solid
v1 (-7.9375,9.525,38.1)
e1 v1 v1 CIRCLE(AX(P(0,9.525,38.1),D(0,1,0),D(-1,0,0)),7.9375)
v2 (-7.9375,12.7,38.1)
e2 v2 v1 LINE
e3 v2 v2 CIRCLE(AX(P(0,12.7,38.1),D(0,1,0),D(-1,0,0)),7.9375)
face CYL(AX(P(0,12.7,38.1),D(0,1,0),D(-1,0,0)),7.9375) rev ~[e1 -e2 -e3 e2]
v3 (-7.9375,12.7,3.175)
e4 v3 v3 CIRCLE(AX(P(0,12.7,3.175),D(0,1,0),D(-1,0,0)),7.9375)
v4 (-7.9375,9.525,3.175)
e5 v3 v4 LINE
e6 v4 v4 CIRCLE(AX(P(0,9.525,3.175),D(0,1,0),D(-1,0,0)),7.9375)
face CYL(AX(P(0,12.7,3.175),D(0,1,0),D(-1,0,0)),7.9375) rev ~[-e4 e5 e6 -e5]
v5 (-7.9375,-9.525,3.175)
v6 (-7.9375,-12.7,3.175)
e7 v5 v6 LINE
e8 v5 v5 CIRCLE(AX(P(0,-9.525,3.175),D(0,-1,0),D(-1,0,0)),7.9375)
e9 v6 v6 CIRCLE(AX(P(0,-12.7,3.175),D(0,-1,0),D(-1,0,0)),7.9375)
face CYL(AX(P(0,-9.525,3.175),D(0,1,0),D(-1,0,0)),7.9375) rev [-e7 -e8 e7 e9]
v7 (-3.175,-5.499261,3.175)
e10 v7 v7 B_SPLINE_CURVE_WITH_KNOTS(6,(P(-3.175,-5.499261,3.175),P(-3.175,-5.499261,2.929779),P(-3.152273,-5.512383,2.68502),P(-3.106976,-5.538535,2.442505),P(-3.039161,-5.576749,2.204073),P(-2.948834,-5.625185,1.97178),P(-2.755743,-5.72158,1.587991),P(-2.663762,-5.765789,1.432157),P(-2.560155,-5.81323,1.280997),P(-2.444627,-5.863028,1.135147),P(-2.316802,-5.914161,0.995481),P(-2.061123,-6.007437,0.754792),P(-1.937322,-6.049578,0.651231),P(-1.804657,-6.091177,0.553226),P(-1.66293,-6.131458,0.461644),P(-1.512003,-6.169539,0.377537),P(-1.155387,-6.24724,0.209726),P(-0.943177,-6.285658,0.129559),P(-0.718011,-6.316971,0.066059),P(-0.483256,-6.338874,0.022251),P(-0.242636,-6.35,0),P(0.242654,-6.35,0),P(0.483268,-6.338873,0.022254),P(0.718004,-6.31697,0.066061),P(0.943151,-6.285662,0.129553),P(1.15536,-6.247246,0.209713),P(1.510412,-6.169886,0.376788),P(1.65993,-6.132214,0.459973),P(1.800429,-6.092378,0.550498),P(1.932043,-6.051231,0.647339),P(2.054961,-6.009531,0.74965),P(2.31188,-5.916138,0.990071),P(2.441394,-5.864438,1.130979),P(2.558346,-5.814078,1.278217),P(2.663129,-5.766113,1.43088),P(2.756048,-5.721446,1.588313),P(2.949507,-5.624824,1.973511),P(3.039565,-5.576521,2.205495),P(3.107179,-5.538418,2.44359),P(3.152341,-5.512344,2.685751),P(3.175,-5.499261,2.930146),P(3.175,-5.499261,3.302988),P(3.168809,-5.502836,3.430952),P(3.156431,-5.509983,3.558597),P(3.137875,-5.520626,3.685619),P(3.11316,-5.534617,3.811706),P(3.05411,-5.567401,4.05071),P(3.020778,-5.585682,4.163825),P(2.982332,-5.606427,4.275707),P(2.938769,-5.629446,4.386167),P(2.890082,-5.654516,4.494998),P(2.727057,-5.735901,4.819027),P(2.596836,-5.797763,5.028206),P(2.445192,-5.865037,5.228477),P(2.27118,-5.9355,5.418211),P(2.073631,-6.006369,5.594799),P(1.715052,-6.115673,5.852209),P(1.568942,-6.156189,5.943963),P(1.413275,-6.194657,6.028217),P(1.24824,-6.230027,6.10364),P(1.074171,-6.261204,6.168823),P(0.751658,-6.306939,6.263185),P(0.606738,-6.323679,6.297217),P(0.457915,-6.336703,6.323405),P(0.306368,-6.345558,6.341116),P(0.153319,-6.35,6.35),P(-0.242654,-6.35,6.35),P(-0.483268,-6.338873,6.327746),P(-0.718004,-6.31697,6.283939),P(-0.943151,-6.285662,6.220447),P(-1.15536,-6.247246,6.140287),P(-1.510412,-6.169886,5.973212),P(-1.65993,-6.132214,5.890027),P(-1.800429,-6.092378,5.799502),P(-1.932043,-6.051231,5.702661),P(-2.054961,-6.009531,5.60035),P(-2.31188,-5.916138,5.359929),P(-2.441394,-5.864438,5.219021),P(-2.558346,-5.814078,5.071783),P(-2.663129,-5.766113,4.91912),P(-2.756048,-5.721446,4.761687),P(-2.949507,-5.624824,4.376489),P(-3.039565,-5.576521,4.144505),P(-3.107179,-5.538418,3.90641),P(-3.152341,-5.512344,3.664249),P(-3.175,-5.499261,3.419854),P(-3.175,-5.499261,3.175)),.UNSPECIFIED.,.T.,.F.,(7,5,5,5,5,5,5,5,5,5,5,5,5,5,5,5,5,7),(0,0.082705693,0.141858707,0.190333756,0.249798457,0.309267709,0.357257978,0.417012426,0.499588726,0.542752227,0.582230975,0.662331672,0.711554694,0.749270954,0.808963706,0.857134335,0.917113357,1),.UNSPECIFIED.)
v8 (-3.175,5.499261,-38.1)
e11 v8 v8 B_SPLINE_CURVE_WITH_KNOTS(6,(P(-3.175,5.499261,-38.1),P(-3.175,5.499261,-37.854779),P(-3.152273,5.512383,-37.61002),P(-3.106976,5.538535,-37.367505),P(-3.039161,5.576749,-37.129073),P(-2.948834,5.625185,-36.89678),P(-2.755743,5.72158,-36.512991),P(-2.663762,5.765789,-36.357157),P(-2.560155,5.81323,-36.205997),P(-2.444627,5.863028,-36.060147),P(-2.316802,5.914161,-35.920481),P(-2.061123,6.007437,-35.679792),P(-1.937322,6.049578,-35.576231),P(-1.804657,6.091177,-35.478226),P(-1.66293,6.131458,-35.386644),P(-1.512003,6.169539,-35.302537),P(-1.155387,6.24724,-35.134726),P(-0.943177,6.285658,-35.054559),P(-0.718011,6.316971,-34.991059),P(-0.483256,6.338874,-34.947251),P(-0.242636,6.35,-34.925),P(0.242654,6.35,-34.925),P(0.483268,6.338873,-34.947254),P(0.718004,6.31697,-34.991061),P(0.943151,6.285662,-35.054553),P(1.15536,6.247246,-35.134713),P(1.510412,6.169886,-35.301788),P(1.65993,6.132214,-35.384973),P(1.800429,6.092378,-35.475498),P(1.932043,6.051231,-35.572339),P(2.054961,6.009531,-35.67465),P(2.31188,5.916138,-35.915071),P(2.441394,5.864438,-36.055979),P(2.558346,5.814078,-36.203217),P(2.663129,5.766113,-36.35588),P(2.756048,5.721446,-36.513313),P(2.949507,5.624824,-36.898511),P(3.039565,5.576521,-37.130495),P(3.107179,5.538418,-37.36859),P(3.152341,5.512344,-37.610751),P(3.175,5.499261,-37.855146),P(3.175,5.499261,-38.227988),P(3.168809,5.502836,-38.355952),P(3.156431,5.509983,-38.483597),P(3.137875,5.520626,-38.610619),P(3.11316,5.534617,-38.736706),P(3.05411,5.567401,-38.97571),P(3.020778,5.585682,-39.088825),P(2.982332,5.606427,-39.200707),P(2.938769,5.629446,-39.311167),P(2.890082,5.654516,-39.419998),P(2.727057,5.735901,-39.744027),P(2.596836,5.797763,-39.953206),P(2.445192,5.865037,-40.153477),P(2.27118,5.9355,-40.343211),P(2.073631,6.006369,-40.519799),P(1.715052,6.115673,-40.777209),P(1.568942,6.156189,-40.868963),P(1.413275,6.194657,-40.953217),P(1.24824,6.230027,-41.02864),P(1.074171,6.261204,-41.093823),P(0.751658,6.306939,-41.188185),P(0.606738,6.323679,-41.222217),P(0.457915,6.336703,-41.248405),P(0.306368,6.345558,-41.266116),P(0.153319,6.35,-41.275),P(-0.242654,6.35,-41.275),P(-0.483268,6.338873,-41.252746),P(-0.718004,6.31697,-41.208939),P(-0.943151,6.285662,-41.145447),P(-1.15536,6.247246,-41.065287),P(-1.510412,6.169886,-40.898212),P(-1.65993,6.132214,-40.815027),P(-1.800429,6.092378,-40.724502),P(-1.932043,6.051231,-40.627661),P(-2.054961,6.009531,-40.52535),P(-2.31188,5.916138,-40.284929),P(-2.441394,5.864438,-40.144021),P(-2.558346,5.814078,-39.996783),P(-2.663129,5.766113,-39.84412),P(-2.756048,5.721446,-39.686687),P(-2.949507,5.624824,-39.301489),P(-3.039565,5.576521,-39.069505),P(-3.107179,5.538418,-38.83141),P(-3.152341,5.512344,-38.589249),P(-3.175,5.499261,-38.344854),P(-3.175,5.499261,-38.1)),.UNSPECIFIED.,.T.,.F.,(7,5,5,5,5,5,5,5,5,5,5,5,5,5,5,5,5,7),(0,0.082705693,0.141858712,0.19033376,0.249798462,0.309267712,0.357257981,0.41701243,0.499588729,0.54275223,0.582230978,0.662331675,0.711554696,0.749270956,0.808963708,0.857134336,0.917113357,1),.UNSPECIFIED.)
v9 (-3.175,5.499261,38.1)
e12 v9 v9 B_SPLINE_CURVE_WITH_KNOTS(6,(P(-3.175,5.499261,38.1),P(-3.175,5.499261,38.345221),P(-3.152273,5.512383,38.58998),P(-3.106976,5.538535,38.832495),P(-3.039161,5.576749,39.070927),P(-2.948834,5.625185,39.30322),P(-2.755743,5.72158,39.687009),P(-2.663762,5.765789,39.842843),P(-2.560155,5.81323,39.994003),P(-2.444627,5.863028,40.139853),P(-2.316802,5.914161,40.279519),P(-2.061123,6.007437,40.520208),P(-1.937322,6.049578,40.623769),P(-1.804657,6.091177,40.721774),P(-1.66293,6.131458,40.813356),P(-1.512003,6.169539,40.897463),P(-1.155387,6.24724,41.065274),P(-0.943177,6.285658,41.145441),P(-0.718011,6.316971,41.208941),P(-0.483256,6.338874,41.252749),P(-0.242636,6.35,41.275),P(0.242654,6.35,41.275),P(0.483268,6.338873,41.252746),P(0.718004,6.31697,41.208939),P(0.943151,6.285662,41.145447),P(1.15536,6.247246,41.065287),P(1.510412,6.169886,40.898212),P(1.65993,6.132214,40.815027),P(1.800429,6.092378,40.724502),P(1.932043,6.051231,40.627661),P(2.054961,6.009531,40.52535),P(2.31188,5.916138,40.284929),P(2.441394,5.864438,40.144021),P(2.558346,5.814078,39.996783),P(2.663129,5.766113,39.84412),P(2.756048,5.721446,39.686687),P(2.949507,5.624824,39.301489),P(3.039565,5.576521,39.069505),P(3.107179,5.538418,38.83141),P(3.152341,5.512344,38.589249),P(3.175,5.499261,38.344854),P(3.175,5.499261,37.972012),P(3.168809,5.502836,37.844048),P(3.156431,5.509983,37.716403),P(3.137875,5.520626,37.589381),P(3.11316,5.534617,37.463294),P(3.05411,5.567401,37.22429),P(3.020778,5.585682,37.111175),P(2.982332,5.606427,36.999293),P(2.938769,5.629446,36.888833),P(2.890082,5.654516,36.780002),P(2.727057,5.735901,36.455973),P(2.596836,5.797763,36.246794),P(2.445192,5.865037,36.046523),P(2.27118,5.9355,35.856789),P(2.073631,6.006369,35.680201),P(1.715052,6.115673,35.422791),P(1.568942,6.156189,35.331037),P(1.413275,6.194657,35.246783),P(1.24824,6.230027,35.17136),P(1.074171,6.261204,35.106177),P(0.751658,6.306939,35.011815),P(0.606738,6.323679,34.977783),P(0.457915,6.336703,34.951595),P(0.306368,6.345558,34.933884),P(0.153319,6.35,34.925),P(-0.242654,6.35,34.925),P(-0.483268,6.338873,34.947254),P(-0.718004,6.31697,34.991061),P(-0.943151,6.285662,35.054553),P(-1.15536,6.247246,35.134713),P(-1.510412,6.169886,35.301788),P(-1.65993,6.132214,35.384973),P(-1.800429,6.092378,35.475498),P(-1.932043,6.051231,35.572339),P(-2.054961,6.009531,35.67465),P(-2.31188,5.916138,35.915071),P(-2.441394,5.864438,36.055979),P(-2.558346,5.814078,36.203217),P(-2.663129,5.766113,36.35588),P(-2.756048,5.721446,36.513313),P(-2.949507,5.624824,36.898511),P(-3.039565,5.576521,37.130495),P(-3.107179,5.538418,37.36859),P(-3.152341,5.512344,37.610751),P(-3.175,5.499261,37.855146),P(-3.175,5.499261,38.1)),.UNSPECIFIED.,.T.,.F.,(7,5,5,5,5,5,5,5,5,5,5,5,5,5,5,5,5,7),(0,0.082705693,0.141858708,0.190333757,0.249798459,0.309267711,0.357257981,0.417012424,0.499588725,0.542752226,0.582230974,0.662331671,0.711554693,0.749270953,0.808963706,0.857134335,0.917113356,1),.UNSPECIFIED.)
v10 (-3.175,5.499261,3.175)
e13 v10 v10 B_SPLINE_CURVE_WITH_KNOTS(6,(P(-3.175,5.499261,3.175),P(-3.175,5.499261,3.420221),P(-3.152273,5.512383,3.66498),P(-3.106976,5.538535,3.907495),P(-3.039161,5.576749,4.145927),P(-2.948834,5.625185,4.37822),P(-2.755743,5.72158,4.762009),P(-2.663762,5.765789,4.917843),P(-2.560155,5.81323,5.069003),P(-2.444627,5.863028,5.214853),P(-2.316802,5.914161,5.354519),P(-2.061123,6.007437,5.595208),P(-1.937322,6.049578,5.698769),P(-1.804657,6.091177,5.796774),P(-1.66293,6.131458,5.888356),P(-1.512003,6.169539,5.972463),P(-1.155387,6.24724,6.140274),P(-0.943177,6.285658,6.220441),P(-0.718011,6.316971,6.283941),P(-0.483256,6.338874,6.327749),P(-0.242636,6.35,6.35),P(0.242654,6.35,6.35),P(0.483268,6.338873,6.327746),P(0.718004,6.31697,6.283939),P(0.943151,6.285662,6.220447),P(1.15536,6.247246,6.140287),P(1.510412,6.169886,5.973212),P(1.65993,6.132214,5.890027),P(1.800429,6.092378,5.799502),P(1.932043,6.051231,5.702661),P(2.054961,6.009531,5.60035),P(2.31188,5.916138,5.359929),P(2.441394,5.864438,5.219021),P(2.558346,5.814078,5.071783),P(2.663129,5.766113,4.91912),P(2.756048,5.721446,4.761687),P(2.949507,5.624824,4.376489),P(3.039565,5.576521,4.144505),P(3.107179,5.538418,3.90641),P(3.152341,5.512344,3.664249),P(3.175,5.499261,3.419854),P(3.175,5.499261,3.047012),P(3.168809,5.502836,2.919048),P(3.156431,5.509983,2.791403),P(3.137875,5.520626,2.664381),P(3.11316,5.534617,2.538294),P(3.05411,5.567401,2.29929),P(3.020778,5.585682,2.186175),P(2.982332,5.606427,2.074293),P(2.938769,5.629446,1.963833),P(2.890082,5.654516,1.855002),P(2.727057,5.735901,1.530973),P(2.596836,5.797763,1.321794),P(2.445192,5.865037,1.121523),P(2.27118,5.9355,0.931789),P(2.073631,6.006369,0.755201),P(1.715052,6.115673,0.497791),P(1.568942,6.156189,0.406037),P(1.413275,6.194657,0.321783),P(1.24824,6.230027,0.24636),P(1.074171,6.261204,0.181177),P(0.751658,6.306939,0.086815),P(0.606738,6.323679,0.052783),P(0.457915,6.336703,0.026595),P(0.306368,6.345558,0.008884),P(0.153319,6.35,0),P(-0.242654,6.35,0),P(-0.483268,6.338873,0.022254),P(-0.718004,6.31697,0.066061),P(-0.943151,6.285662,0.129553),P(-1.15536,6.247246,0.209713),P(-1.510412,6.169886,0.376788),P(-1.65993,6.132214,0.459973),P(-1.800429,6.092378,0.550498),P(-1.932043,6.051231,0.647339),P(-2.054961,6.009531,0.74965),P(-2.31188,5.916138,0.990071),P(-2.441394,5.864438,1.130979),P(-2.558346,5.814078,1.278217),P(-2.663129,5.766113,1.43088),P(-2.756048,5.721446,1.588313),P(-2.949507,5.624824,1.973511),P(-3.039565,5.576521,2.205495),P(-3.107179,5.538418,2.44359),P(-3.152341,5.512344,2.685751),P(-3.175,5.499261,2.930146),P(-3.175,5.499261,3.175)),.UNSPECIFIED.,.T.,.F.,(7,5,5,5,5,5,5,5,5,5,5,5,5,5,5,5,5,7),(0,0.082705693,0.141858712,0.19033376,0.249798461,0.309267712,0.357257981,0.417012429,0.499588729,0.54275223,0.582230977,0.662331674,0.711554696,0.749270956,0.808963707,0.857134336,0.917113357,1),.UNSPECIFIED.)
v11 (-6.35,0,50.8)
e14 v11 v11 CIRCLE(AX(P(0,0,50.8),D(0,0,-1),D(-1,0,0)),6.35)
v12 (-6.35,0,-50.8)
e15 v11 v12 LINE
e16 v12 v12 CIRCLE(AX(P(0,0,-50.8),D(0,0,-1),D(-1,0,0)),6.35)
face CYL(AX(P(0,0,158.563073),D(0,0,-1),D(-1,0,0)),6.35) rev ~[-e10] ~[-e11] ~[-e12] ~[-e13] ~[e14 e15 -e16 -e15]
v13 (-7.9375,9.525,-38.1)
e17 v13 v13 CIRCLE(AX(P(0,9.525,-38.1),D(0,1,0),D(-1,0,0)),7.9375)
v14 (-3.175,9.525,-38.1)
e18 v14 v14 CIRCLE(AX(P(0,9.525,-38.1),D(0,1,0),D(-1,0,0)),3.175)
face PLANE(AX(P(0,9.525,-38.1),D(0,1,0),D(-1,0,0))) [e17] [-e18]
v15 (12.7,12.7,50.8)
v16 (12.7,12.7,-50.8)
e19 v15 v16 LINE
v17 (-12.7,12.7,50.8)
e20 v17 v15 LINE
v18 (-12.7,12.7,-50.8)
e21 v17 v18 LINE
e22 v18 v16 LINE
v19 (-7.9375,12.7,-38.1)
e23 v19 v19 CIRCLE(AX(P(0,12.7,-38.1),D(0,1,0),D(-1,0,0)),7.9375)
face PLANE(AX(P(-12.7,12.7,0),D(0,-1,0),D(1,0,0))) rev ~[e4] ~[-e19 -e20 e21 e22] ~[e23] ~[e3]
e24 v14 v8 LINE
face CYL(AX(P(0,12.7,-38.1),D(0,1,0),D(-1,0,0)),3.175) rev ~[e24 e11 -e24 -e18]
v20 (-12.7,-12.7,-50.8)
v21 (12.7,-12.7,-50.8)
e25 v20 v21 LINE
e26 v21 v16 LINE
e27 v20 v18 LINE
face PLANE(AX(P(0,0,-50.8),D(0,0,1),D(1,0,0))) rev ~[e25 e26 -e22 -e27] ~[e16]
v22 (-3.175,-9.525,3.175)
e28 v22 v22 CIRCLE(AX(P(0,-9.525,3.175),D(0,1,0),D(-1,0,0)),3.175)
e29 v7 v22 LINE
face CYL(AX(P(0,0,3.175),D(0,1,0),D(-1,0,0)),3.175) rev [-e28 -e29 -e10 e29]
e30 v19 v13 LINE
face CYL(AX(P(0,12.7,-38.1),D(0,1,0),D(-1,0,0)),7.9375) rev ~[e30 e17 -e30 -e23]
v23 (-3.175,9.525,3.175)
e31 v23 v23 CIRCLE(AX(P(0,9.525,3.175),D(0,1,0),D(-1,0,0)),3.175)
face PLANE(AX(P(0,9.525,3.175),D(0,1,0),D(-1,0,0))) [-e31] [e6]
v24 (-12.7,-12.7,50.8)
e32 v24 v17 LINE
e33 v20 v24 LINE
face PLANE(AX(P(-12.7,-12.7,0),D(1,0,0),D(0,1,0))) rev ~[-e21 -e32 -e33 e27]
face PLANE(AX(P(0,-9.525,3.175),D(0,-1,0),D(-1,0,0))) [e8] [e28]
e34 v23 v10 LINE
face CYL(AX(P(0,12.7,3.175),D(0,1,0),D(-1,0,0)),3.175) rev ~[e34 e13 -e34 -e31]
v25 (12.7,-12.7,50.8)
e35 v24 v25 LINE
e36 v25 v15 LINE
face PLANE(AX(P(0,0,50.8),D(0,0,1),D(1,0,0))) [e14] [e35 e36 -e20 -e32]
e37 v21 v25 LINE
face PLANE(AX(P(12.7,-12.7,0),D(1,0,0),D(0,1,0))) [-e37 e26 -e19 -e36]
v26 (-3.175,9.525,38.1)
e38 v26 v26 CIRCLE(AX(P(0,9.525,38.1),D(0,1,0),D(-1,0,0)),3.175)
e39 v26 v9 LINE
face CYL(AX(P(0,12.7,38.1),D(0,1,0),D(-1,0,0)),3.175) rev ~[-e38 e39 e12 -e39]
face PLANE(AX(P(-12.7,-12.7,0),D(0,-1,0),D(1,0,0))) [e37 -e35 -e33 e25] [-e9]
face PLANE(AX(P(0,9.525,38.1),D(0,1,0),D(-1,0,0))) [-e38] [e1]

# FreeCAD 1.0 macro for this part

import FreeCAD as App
import Part
import Sketcher

V = App.Vector
Q = App.Units.Quantity

doc = App.newDocument("Part")
params = doc.addObject("Spreadsheet::Sheet", "Params")
for row, (alias, value) in enumerate([
    ("sketch1_width", "1 in"),
    ("pad1_length", "4 in"),
    ("sketch2_diameter", "0.5 in"),
    ("hole_diameter", "0.5 in"),
    ("sketch3_diameter", "0.25 in"),
    ("pocket1_length", "0.5 in"),
    ("sketch4_diameter", "0.625 in"),
    ("pocket2_length", "0.125 in"),
    ("sketch5_diameter", "0.25 in"),
    ("pocket3_length", "0.5 in"),
    ("sketch6_diameter", "0.625 in"),
    ("pocket4_length", "0.125 in"),
], start=1):
    params.set(f"A{row}", alias)
    params.set(f"B{row}", "=" + value)
    params.setAlias(f"B{row}", alias)

body = doc.addObject("PartDesign::Body", "Body")

# Sketch on XY plane
sketch1 = body.newObject("Sketcher::SketchObject", "Sketch")
sketch1.AttachmentSupport = (doc.getObject("XY_Plane"), [""])
sketch1.MapMode = "FlatFace"
sketch1.addGeometry([
    Part.LineSegment(V(-13, 13, 0), V(-13, -13, 0)),
    Part.LineSegment(V(-13, -13, 0), V(13, -13, 0)),
    Part.LineSegment(V(13, -13, 0), V(13, 13, 0)),
    Part.LineSegment(V(13, 13, 0), V(-13, 13, 0)),
], False)
sketch1.addConstraint([
    Sketcher.Constraint("Coincident", 0, 2, 1, 1),
    Sketcher.Constraint("Coincident", 1, 2, 2, 1),
    Sketcher.Constraint("Coincident", 2, 2, 3, 1),
    Sketcher.Constraint("Coincident", 3, 2, 0, 1),
    Sketcher.Constraint("Vertical", 0),
    Sketcher.Constraint("Horizontal", 1),
    Sketcher.Constraint("Vertical", 2),
    Sketcher.Constraint("Horizontal", 3),
    Sketcher.Constraint("Symmetric", 0, 2, 2, 2, -1, 1),
    Sketcher.Constraint("Equal", 3, 0),
    Sketcher.Constraint("DistanceX", 1, 1, 1, 2, Q("1 in")),
])
sketch1.setExpression("Constraints[10]", "Params.sketch1_width")
pad1 = body.newObject("PartDesign::Pad", "Pad")
pad1.Profile = sketch1
pad1.setExpression("Length", "Params.pad1_length")
pad1.Midplane = True

# Sketch on XY plane
sketch2 = body.newObject("Sketcher::SketchObject", "Sketch001")
sketch2.AttachmentSupport = (doc.getObject("XY_Plane"), [""])
sketch2.MapMode = "FlatFace"
sketch2.AttachmentOffset = App.Placement(V(0, 0, 2 * 25.4), App.Rotation())
sketch2.addGeometry(Part.Circle(V(0, 0, 0), V(0, 0, 1), 6), False)
sketch2.addConstraint([
    Sketcher.Constraint("Coincident", 0, 3, -1, 1),
    Sketcher.Constraint("Diameter", 0, Q("0.5 in")),
])
sketch2.setExpression("Constraints[1]", "Params.sketch2_diameter")
doc.recompute()
hole = body.newObject("PartDesign::Hole", "Hole")
hole.Profile = sketch2
hole.ThreadType = "None"
hole.setExpression("Diameter", "Params.hole_diameter")
hole.DepthType = "ThroughAll"

# Sketch on XZ plane
sketch3 = body.newObject("Sketcher::SketchObject", "Sketch002")
sketch3.AttachmentSupport = (doc.getObject("XZ_Plane"), [""])
sketch3.MapMode = "FlatFace"
sketch3.AttachmentOffset = App.Placement(V(0, 0, -0.5 * 25.4), App.Rotation())
sketch3.addGeometry([
    Part.Circle(V(0, 38.1, 0), V(0, 0, 1), 3.2),
    Part.Circle(V(0, 3.2, 0), V(0, 0, 1), 3.2),
    Part.Circle(V(0, -38.1, 0), V(0, 0, 1), 3.2),
], False)
sketch3.addConstraint([
    Sketcher.Constraint("Equal", 0, 1),
    Sketcher.Constraint("Equal", 1, 2),
    Sketcher.Constraint("Symmetric", 0, 3, 2, 3, -1, 1),
    Sketcher.Constraint("PointOnObject", 0, 3, -2),
    Sketcher.Constraint("PointOnObject", 1, 3, -2),
    Sketcher.Constraint("Diameter", 0, Q("0.25 in")),
    Sketcher.Constraint("DistanceY", 2, 3, 0, 3, Q("3 in")),
    Sketcher.Constraint("DistanceY", -1, 1, 1, 3, Q("0.125 in")),
])
sketch3.setExpression("Constraints[5]", "Params.sketch3_diameter")
pocket1 = body.newObject("PartDesign::Pocket", "Pocket")
pocket1.Profile = sketch3
pocket1.setExpression("Length", "Params.pocket1_length")
pocket1.Reversed = True

# Sketch on XZ plane
sketch4 = body.newObject("Sketcher::SketchObject", "Sketch003")
sketch4.AttachmentSupport = (doc.getObject("XZ_Plane"), [""])
sketch4.MapMode = "FlatFace"
sketch4.AttachmentOffset = App.Placement(V(0, 0, -0.5 * 25.4), App.Rotation())
sketch4.addGeometry([
    Part.Circle(V(0, -38, 0), V(0, 0, 1), 8),
    Part.Circle(V(0, 3, 0), V(0, 0, 1), 8),
    Part.Circle(V(0, 38, 0), V(0, 0, 1), 8),
], False)
sketch4.addConstraint([
    Sketcher.Constraint("Equal", 0, 1),
    Sketcher.Constraint("Equal", 1, 2),
    Sketcher.Constraint("Symmetric", 0, 3, 2, 3, -1, 1),
    Sketcher.Constraint("PointOnObject", 0, 3, -2),
    Sketcher.Constraint("PointOnObject", 1, 3, -2),
    Sketcher.Constraint("Diameter", 0, Q("0.625 in")),
    Sketcher.Constraint("DistanceY", 0, 3, 2, 3, Q("3 in")),
    Sketcher.Constraint("DistanceY", -1, 1, 1, 3, Q("0.125 in")),
])
sketch4.setExpression("Constraints[5]", "Params.sketch4_diameter")
pocket2 = body.newObject("PartDesign::Pocket", "Pocket001")
pocket2.Profile = sketch4
pocket2.setExpression("Length", "Params.pocket2_length")
pocket2.Reversed = True

# Sketch on XZ plane
sketch5 = body.newObject("Sketcher::SketchObject", "Sketch004")
sketch5.AttachmentSupport = (doc.getObject("XZ_Plane"), [""])
sketch5.MapMode = "FlatFace"
sketch5.addGeometry(Part.Circle(V(0, 3.2, 0), V(0, 0, 1), 3.2), False)
sketch5.addConstraint([
    Sketcher.Constraint("PointOnObject", 0, 3, -2),
    Sketcher.Constraint("Diameter", 0, Q("0.25 in")),
    Sketcher.Constraint("DistanceY", -1, 1, 0, 3, Q("0.125 in")),
])
sketch5.setExpression("Constraints[1]", "Params.sketch5_diameter")
pocket3 = body.newObject("PartDesign::Pocket", "Pocket002")
pocket3.Profile = sketch5
pocket3.setExpression("Length", "Params.pocket3_length")
pocket3.Reversed = True

# Sketch on XZ plane
sketch6 = body.newObject("Sketcher::SketchObject", "Sketch005")
sketch6.AttachmentSupport = (doc.getObject("XZ_Plane"), [""])
sketch6.MapMode = "FlatFace"
sketch6.AttachmentOffset = App.Placement(V(0, 0, 0.375 * 25.4), App.Rotation())
sketch6.addGeometry(Part.Circle(V(0, 3, 0), V(0, 0, 1), 8), False)
sketch6.addConstraint([
    Sketcher.Constraint("PointOnObject", 0, 3, -2),
    Sketcher.Constraint("Diameter", 0, Q("0.625 in")),
    Sketcher.Constraint("DistanceY", -1, 1, 0, 3, Q("0.125 in")),
])
sketch6.setExpression("Constraints[1]", "Params.sketch6_diameter")
pocket4 = body.newObject("PartDesign::Pocket", "Pocket003")
pocket4.Profile = sketch6
pocket4.setExpression("Length", "Params.pocket4_length")
pocket4.Reversed = True

doc.recompute()
